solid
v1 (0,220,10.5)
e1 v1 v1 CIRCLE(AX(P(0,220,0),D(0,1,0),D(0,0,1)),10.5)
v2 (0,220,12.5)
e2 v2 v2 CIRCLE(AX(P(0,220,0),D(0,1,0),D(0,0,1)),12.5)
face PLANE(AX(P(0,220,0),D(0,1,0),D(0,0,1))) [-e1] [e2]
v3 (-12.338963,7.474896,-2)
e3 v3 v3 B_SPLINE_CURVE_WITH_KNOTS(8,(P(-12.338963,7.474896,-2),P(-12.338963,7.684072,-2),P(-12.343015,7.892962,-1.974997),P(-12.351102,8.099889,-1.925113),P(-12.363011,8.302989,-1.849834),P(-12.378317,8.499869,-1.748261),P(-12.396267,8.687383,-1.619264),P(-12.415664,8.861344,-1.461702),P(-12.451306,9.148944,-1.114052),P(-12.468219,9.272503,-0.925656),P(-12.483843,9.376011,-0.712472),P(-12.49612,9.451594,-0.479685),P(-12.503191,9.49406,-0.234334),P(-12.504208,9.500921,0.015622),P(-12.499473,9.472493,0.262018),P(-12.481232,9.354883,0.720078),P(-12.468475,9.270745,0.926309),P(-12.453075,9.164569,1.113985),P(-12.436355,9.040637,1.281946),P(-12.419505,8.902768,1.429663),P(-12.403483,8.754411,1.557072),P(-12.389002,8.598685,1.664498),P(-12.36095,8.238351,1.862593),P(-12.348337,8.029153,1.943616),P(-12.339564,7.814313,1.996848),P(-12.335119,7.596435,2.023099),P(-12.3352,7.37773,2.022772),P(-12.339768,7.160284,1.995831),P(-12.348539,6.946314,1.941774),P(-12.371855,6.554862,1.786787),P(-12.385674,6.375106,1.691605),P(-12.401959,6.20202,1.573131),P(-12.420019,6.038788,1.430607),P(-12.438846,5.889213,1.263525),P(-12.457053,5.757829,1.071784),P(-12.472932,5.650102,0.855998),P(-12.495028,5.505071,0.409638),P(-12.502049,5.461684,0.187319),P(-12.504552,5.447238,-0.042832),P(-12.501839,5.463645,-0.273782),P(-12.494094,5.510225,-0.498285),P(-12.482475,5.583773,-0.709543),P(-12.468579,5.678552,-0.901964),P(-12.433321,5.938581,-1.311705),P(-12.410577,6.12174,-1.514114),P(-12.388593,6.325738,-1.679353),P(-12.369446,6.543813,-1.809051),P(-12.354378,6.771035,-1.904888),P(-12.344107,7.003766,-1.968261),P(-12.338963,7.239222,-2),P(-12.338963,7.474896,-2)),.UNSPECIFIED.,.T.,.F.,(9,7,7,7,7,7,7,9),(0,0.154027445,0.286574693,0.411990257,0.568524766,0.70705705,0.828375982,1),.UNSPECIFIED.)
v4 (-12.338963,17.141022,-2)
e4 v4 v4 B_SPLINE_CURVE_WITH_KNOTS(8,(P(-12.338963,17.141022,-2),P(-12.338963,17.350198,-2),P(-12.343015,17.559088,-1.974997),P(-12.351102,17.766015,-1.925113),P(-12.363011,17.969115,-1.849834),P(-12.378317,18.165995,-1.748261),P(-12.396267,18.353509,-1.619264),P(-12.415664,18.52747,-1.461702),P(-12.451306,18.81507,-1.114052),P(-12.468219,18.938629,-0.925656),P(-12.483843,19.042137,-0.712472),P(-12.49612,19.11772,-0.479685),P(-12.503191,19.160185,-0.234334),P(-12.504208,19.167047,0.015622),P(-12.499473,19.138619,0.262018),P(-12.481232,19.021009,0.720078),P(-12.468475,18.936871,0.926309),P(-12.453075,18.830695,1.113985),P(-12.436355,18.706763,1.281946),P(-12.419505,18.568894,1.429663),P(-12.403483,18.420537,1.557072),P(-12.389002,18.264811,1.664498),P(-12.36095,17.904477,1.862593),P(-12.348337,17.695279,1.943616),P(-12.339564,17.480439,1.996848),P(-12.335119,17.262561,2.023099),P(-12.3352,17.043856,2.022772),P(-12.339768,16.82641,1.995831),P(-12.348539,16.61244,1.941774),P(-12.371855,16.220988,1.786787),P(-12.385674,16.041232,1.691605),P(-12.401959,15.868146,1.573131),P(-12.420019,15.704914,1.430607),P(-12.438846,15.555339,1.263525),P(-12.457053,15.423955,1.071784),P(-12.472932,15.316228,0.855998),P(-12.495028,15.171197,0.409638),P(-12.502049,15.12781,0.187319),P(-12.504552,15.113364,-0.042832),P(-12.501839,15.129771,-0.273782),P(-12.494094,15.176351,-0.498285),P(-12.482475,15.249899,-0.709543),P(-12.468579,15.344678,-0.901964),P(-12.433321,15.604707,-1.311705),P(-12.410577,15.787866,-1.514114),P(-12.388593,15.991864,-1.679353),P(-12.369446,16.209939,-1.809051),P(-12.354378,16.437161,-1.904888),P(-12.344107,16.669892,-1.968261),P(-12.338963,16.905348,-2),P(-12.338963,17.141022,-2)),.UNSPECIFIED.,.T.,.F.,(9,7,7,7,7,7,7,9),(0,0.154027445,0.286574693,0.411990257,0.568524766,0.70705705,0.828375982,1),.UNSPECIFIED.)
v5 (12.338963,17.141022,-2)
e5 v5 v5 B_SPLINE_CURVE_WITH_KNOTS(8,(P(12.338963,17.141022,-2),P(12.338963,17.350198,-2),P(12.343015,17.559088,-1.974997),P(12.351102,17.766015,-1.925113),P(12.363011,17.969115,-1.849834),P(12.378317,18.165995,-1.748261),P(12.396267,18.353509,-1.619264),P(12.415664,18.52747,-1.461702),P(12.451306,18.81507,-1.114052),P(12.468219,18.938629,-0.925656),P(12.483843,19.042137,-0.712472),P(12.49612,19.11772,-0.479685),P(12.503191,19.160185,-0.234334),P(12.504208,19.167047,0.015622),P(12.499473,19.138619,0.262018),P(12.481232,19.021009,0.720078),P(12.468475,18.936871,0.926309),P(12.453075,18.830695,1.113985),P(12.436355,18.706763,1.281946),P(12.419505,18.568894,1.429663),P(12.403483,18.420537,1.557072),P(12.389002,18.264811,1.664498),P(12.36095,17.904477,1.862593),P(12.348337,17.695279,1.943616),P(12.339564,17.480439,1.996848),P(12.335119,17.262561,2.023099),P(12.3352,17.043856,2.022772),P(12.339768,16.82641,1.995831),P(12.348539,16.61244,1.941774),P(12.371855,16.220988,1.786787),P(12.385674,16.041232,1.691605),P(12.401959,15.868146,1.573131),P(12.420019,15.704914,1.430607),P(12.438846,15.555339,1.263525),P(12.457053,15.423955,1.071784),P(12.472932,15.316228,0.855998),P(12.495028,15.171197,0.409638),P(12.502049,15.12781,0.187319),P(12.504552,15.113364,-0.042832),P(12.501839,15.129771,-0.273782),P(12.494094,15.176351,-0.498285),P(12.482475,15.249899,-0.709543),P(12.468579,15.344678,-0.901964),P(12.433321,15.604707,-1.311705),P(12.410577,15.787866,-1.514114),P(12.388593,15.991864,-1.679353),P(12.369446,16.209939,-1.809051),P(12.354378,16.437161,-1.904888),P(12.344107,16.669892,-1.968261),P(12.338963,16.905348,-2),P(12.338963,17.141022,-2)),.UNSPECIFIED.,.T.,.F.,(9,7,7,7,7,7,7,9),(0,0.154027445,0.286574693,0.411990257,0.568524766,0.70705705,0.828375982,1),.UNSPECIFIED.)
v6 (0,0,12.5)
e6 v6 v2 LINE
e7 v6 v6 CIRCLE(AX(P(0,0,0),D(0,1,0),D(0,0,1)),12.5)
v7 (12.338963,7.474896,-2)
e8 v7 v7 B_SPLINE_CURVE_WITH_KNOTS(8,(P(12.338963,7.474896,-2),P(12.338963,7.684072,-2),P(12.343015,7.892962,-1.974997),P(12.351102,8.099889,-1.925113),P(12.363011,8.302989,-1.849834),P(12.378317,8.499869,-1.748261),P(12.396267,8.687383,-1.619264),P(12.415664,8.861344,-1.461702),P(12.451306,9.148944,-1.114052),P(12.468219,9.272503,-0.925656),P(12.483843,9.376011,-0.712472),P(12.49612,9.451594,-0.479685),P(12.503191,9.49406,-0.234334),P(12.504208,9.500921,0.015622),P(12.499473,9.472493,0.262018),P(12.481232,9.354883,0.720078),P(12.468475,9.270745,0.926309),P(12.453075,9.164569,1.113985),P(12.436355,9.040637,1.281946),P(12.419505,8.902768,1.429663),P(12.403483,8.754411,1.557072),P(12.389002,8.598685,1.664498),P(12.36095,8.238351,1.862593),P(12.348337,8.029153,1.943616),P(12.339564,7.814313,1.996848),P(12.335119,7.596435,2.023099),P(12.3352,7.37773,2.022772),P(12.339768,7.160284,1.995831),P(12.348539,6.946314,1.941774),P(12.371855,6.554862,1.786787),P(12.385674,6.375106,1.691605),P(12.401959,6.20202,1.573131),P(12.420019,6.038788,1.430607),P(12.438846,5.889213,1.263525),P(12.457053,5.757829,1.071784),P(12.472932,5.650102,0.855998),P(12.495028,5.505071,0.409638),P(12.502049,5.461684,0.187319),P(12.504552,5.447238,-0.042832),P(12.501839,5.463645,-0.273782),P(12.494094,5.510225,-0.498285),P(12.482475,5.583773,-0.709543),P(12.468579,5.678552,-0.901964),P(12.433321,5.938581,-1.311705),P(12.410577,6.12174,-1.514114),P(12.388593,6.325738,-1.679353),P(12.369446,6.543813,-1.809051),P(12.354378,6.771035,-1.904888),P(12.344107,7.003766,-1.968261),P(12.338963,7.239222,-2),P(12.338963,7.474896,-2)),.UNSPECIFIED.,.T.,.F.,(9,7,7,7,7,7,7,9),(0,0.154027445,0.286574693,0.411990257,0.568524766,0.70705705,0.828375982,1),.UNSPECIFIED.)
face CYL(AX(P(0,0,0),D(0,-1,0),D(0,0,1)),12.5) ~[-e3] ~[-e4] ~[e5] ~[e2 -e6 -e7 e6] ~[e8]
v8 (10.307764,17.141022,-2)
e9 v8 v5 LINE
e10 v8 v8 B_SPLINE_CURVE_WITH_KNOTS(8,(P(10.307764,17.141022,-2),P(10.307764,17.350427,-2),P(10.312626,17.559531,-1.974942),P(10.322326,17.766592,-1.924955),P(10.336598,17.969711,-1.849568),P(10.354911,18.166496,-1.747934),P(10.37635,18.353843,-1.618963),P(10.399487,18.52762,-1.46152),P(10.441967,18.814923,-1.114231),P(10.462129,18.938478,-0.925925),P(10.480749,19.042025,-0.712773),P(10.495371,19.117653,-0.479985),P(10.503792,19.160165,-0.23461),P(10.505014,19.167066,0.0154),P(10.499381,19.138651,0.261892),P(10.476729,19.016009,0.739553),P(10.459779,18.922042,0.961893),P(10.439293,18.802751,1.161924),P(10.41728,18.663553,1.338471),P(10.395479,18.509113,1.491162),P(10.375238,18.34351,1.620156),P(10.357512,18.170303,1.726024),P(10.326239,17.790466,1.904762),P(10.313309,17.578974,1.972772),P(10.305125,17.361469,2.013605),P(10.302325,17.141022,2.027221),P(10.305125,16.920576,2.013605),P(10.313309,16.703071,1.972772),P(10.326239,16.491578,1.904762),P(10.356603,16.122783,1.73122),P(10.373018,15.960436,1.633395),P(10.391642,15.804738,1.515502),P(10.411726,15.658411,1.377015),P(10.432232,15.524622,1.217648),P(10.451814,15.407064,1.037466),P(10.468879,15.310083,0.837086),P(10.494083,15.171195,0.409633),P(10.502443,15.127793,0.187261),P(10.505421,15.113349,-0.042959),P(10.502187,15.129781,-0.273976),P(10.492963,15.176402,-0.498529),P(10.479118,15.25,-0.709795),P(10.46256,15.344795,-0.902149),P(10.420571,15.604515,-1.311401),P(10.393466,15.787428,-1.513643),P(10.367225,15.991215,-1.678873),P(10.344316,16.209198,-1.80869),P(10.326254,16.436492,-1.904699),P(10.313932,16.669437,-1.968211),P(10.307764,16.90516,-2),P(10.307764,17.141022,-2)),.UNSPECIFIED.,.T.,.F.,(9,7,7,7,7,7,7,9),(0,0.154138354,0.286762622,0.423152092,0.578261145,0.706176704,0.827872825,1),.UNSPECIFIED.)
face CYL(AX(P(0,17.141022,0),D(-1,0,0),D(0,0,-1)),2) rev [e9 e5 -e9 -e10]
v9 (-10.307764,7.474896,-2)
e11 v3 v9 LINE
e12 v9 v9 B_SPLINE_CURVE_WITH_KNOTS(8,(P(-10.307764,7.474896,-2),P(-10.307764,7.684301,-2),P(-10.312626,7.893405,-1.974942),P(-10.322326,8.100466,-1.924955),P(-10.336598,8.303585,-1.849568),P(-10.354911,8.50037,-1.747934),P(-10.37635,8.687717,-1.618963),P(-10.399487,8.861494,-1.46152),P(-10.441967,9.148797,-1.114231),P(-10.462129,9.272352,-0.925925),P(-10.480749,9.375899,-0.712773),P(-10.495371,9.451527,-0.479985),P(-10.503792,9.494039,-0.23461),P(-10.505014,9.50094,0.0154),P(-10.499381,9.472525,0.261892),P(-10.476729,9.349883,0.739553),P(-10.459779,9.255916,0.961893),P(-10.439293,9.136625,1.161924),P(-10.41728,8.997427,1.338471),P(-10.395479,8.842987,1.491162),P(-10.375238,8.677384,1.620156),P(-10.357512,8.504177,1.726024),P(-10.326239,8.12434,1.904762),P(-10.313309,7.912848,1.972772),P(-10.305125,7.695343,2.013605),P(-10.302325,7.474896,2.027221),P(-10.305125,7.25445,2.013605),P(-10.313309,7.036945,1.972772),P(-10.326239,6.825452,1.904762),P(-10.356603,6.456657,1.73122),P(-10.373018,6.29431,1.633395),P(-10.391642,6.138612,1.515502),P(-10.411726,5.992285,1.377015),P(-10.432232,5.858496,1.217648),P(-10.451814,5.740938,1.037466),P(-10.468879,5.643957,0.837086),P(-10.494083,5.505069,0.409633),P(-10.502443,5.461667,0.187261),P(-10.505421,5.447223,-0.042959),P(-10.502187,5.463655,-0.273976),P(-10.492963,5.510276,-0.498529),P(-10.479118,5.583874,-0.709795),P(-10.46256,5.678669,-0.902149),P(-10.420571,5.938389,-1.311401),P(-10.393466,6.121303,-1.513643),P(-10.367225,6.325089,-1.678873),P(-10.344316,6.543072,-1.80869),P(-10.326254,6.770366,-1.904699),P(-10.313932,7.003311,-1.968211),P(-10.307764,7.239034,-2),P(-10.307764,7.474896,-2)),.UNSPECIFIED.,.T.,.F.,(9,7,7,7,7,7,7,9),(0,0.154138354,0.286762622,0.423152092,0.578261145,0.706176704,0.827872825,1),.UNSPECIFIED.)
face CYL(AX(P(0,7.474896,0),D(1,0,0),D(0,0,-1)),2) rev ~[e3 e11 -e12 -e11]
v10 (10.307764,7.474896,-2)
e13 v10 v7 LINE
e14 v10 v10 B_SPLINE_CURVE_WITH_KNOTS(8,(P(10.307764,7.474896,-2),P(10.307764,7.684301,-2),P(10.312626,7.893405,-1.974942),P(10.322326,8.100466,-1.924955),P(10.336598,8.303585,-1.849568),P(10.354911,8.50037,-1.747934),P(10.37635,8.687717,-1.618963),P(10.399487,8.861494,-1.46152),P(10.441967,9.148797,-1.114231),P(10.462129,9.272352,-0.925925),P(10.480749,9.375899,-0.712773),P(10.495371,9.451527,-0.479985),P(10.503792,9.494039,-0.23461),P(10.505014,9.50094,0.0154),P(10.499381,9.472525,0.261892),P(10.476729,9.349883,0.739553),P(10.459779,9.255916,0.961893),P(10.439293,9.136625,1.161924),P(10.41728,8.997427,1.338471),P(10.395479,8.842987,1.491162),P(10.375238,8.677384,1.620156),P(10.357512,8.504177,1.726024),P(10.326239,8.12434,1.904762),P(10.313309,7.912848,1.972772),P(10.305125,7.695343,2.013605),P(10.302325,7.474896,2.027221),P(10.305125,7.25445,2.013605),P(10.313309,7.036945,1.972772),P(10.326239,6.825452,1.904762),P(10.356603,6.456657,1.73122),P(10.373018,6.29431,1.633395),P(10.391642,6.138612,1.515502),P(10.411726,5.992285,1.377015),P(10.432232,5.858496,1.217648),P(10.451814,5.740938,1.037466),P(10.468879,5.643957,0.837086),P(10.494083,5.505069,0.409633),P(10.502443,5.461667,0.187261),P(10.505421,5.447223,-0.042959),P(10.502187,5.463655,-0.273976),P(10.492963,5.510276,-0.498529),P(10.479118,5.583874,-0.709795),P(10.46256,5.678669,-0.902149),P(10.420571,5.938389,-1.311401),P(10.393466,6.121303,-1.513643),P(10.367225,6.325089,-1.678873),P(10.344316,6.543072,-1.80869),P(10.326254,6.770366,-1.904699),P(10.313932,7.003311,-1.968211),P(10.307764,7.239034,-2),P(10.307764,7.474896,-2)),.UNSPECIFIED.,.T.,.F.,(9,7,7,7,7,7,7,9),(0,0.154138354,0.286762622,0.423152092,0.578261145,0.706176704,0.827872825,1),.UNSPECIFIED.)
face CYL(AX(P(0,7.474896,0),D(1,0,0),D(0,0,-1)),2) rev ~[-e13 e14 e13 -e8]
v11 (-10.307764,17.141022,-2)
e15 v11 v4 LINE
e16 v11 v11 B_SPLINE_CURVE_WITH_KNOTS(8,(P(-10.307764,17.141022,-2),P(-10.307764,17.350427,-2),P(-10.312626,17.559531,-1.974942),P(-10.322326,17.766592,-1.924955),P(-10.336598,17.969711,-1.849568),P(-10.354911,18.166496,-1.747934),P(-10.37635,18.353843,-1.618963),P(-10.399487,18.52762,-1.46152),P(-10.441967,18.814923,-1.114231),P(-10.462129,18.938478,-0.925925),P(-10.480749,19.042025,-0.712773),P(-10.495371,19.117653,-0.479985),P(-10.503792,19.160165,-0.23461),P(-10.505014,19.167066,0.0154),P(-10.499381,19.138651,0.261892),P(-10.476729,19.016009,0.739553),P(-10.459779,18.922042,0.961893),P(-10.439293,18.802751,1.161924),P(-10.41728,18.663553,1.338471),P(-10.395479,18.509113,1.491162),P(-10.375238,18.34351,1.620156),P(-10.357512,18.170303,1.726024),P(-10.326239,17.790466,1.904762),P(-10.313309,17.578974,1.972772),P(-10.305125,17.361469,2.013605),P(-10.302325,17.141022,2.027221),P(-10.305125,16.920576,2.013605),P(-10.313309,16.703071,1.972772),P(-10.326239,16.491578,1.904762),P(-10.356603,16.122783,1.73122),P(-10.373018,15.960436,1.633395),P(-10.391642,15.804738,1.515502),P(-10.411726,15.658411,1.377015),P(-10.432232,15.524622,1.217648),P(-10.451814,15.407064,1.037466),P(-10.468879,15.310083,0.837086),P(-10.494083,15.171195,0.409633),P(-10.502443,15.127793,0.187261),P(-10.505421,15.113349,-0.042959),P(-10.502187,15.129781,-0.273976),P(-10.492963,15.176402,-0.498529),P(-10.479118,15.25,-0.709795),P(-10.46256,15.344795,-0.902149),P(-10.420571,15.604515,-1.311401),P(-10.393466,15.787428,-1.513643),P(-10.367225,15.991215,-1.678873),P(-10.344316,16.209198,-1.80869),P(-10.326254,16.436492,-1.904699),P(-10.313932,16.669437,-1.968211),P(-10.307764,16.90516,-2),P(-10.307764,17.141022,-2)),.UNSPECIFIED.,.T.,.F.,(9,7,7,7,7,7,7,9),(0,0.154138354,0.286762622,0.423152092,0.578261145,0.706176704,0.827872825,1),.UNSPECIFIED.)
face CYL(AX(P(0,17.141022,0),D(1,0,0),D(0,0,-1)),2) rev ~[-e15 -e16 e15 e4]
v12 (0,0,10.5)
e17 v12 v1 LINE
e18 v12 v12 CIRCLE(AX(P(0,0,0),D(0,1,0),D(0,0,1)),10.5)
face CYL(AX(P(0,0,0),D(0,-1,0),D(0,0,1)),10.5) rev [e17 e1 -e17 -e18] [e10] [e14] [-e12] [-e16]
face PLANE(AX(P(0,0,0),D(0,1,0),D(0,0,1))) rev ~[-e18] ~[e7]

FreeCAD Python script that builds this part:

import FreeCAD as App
import Part
import Sketcher

doc = App.newDocument("Part")
body = doc.addObject("PartDesign::Body", "Body")

sketch1 = body.newObject("Sketcher::SketchObject", "Sketch")
sketch1.AttachmentSupport = (doc.getObject("XZ_Plane"), [""])
sketch1.MapMode = "FlatFace"
sketch1.addGeometry(Part.Circle(App.Vector(0, 0, 0), App.Vector(0, 0, 1), 12), False)
sketch1.addGeometry(Part.Circle(App.Vector(0, 0, 0), App.Vector(0, 0, 1), 10), False)
sketch1.addConstraint(Sketcher.Constraint("Coincident", 0, 3, -1, 1))
sketch1.addConstraint(Sketcher.Constraint("Coincident", 1, 3, -1, 1))
sketch1.addConstraint(Sketcher.Constraint("Diameter", 0, 25.0))
sketch1.addConstraint(Sketcher.Constraint("Diameter", 1, 21.0))
pad1 = body.newObject("PartDesign::Pad", "Pad")
pad1.Profile = sketch1
pad1.Length = 220
pad1.Reversed = True

sketch2 = body.newObject("Sketcher::SketchObject", "Sketch001")
sketch2.AttachmentSupport = (doc.getObject("YZ_Plane"), [""])
sketch2.MapMode = "FlatFace"
sketch2.addGeometry(Part.Circle(App.Vector(17.1, 0, 0), App.Vector(0, 0, 1), 2), False)
sketch2.addGeometry(Part.Circle(App.Vector(7.5, 0, 0), App.Vector(0, 0, 1), 2), False)
sketch2.addConstraint(Sketcher.Constraint("Equal", 0, 1))
sketch2.addConstraint(Sketcher.Constraint("PointOnObject", 0, 3, -1))
sketch2.addConstraint(Sketcher.Constraint("PointOnObject", 1, 3, -1))
sketch2.addConstraint(Sketcher.Constraint("Diameter", 0, 4.0))
sketch2.addConstraint(Sketcher.Constraint("DistanceX", -1, 1, 0, 3, 17.141022))
sketch2.addConstraint(Sketcher.Constraint("DistanceX", -1, 1, 1, 3, 7.474896))
pocket1 = body.newObject("PartDesign::Pocket", "Pocket")
pocket1.Profile = sketch2
pocket1.Length = 200
pocket1.Midplane = True

doc.recompute()
